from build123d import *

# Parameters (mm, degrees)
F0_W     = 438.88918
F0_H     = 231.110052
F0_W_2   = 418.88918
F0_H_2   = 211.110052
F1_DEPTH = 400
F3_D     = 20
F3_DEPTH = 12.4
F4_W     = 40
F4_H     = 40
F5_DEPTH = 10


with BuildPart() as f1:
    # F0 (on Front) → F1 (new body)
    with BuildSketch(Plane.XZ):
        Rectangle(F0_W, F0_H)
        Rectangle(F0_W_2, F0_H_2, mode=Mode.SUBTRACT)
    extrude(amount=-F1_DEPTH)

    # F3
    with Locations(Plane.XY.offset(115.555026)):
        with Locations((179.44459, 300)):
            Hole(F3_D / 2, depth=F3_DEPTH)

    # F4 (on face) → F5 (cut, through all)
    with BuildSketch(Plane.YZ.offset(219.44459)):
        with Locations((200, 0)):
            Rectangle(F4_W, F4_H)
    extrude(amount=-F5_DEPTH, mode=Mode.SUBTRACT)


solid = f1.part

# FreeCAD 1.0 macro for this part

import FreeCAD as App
import Part
import Sketcher

V = App.Vector


def add_polygon(sketch, points):
    """Adds a closed chain of lines whose ends are joined by coincident constraints."""
    first, n = sketch.GeometryCount, len(points)
    for a, b in zip(points, points[1:] + points[:1]):
        sketch.addGeometry(Part.LineSegment(App.Vector(*a, 0), App.Vector(*b, 0)), False)
    for i in range(n):
        sketch.addConstraint(Sketcher.Constraint("Coincident", first + i, 2, first + (i + 1) % n, 1))

doc = App.newDocument("Part")
body = doc.addObject("PartDesign::Body", "Body")

sketch1 = doc.addObject("Sketcher::SketchObject", "Sketch")
body.addObject(sketch1)
sketch1.AttachmentSupport = (doc.XZ_Plane, [""])
sketch1.MapMode = "FlatFace"
add_polygon(sketch1, [(-219, 116), (-219, -116), (219, -116), (219, 116)])
add_polygon(sketch1, [(209, -106), (-209, -106), (-209, 106), (209, 106)])
sketch1.addConstraint(Sketcher.Constraint("Vertical", 0))
sketch1.addConstraint(Sketcher.Constraint("Horizontal", 1))
sketch1.addConstraint(Sketcher.Constraint("Vertical", 2))
sketch1.addConstraint(Sketcher.Constraint("Horizontal", 3))
sketch1.addConstraint(Sketcher.Constraint("Horizontal", 4))
sketch1.addConstraint(Sketcher.Constraint("Vertical", 5))
sketch1.addConstraint(Sketcher.Constraint("Horizontal", 6))
sketch1.addConstraint(Sketcher.Constraint("Vertical", 7))
sketch1.addConstraint(Sketcher.Constraint("Symmetric", 0, 2, 2, 2, -1, 1))
sketch1.addConstraint(Sketcher.Constraint("Symmetric", 4, 2, 6, 2, -1, 1))
sketch1.addConstraint(Sketcher.Constraint("DistanceX", 0, 2, 4, 2, 10.0))
sketch1.addConstraint(Sketcher.Constraint("DistanceY", 0, 2, 4, 2, 10.0))
sketch1.addConstraint(Sketcher.Constraint("DistanceX", 1, 1, 1, 2, 438.88918))
sketch1.addConstraint(Sketcher.Constraint("DistanceY", 0, 2, 0, 1, 231.110052))
pad1 = doc.addObject("PartDesign::Pad", "Pad")
body.addObject(pad1)
pad1.Profile = sketch1
pad1.Length = 400
pad1.Reversed = True

sketch2 = doc.addObject("Sketcher::SketchObject", "Sketch001")
body.addObject(sketch2)
sketch2.AttachmentSupport = (doc.XY_Plane, [""])
sketch2.MapMode = "FlatFace"
sketch2.AttachmentOffset = App.Placement(V(0, 0, 115.555026), App.Rotation())
sketch2.addGeometry(Part.Circle(V(179, 300, 0), V(0, 0, 1), 10), False)
sketch2.addConstraint(Sketcher.Constraint("Diameter", 0, 20.0))
sketch2.addConstraint(Sketcher.Constraint("DistanceY", -1, 1, 0, 3, 300.0))
sketch2.addConstraint(Sketcher.Constraint("DistanceX", -1, 1, 0, 3, 179.44459))
doc.recompute()
hole = doc.addObject("PartDesign::Hole", "Hole")
body.addObject(hole)
hole.Profile = sketch2
hole.ThreadType = "None"
hole.Diameter = 20
hole.DepthType = "Dimension"
hole.Depth = 12.4
hole.DrillPoint = "Flat"

sketch3 = doc.addObject("Sketcher::SketchObject", "Sketch002")
body.addObject(sketch3)
sketch3.AttachmentSupport = (doc.YZ_Plane, [""])
sketch3.MapMode = "FlatFace"
sketch3.AttachmentOffset = App.Placement(V(0, 0, 219.44459), App.Rotation())
add_polygon(sketch3, [(180, 20), (180, -20), (220, -20), (220, 20)])
sketch3.addConstraint(Sketcher.Constraint("Vertical", 0))
sketch3.addConstraint(Sketcher.Constraint("Horizontal", 1))
sketch3.addConstraint(Sketcher.Constraint("Vertical", 2))
sketch3.addConstraint(Sketcher.Constraint("Horizontal", 3))
sketch3.addConstraint(Sketcher.Constraint("Equal", 3, 0))
sketch3.addConstraint(Sketcher.Constraint("DistanceX", 1, 1, 1, 2, 40.0))
sketch3.addConstraint(Sketcher.Constraint("DistanceX", -1, 1, 0, 2, 180.0))
sketch3.addConstraint(Sketcher.Constraint("DistanceY", 0, 2, -1, 1, 20.0))
pocket1 = doc.addObject("PartDesign::Pocket", "Pocket")
body.addObject(pocket1)
pocket1.Profile = sketch3
pocket1.Length = 10

doc.recompute()
